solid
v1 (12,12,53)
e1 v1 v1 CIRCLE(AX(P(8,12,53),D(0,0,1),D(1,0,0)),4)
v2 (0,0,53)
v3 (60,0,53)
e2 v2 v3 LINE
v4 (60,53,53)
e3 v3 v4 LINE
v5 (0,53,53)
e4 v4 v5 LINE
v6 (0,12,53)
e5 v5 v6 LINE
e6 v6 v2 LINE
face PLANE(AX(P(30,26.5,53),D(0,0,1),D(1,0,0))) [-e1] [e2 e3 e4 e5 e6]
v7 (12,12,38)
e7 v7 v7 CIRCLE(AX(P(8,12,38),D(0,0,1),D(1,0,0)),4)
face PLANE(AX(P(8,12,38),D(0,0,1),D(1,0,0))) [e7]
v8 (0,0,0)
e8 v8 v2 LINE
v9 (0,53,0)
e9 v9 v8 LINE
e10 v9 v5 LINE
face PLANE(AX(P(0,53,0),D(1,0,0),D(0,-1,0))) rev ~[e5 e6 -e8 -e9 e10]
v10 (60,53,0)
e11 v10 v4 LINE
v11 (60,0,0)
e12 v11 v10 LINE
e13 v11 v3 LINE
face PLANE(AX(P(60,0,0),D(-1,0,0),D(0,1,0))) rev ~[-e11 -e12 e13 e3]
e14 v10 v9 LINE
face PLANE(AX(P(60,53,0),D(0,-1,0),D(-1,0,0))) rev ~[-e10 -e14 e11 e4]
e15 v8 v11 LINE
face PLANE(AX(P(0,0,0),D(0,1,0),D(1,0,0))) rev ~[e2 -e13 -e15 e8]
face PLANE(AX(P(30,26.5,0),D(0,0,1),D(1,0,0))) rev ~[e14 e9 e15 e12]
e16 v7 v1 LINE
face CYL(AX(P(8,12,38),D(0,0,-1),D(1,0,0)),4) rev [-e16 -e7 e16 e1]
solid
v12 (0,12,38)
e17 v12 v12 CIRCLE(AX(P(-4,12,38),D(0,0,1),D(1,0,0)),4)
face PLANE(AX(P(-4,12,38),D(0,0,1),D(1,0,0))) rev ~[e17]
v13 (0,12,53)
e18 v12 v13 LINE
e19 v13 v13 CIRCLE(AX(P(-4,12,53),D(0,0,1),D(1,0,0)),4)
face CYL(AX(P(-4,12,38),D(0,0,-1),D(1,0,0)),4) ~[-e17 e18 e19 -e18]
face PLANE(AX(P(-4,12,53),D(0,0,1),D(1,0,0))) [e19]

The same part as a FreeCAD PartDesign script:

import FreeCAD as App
import Part
import Sketcher
Q = App.Units.Quantity

doc = App.newDocument("Part")
params = doc.addObject("Spreadsheet::Sheet", "Params")
for row, (alias, value) in enumerate([
    ("sketch1_width", "60 mm"),
    ("sketch1_height", "53 mm"),
    ("pad1_length", "53 mm"),
    ("sketch2_diameter", "8 mm"),
    ("pocket1_length", "15 mm"),
    ("sketch3_diameter", "8 mm"),
    ("pad2_length", "15 mm"),
], start=1):
    params.set(f"A{row}", alias)
    params.set(f"B{row}", "=" + value)
    params.setAlias(f"B{row}", alias)

body = doc.addObject("PartDesign::Body", "Body")

# Sketch on XY plane
sketch1 = body.newObject("Sketcher::SketchObject", "Sketch")
sketch1.AttachmentSupport = (doc.getObject("XY_Plane"), [""])
sketch1.MapMode = "FlatFace"
sketch1.addGeometry([
    Part.LineSegment(App.Vector(0, 0, 0), App.Vector(60, 0, 0)),
    Part.LineSegment(App.Vector(60, 0, 0), App.Vector(60, 53, 0)),
    Part.LineSegment(App.Vector(60, 53, 0), App.Vector(0, 53, 0)),
    Part.LineSegment(App.Vector(0, 53, 0), App.Vector(0, 0, 0)),
], False)
sketch1.addConstraint([
    Sketcher.Constraint("Coincident", 0, 2, 1, 1),
    Sketcher.Constraint("Coincident", 1, 2, 2, 1),
    Sketcher.Constraint("Coincident", 2, 2, 3, 1),
    Sketcher.Constraint("Coincident", 3, 2, 0, 1),
    Sketcher.Constraint("Horizontal", 0),
    Sketcher.Constraint("Vertical", 1),
    Sketcher.Constraint("Horizontal", 2),
    Sketcher.Constraint("Vertical", 3),
    Sketcher.Constraint("Coincident", 3, 2, -1, 1),
    Sketcher.Constraint("DistanceX", 0, 1, 0, 2, Q("60 mm")),
    Sketcher.Constraint("DistanceY", 1, 1, 1, 2, Q("53 mm")),
])
sketch1.setExpression("Constraints[9]", "Params.sketch1_width")
sketch1.setExpression("Constraints[10]", "Params.sketch1_height")
pad1 = body.newObject("PartDesign::Pad", "Pad")
pad1.Profile = sketch1
pad1.setExpression("Length", "Params.pad1_length")

# Sketch on XY plane
sketch2 = body.newObject("Sketcher::SketchObject", "Sketch001")
sketch2.AttachmentSupport = (doc.getObject("XY_Plane"), [""])
sketch2.MapMode = "FlatFace"
sketch2.AttachmentOffset = App.Placement(App.Vector(0, 0, 38), App.Rotation())
sketch2.addGeometry([
    Part.Circle(App.Vector(8, 12, 0), App.Vector(0, 0, 1), 4),
    Part.Circle(App.Vector(-4, 12, 0), App.Vector(0, 0, 1), 4),
], False)
sketch2.addConstraint([
    Sketcher.Constraint("Equal", 0, 1),
    Sketcher.Constraint("Horizontal", 0, 3, 1, 3),
    Sketcher.Constraint("Diameter", 0, Q("8 mm")),
    Sketcher.Constraint("DistanceX", -1, 1, 0, 3, Q("8 mm")),
    Sketcher.Constraint("DistanceY", -1, 1, 0, 3, Q("12 mm")),
    Sketcher.Constraint("DistanceX", 1, 3, -1, 1, Q("4 mm")),
])
sketch2.setExpression("Constraints[2]", "Params.sketch2_diameter")
pocket1 = body.newObject("PartDesign::Pocket", "Pocket")
pocket1.Profile = sketch2
pocket1.setExpression("Length", "Params.pocket1_length")
pocket1.Reversed = True
body2 = doc.addObject("PartDesign::Body", "Body001")

# Sketch on XY plane
sketch3 = body2.newObject("Sketcher::SketchObject", "Sketch002")
sketch3.AttachmentSupport = (doc.getObject("XY_Plane001"), [""])
sketch3.MapMode = "FlatFace"
sketch3.AttachmentOffset = App.Placement(App.Vector(0, 0, 38), App.Rotation())
sketch3.addGeometry(Part.Circle(App.Vector(-4, 12, 0), App.Vector(0, 0, 1), 4), False)
sketch3.addConstraint([
    Sketcher.Constraint("Diameter", 0, Q("8 mm")),
    Sketcher.Constraint("DistanceX", 0, 3, -1, 1, Q("4 mm")),
    Sketcher.Constraint("DistanceY", -1, 1, 0, 3, Q("12 mm")),
])
sketch3.setExpression("Constraints[0]", "Params.sketch3_diameter")
pad2 = body2.newObject("PartDesign::Pad", "Pad001")
pad2.Profile = sketch3
pad2.setExpression("Length", "Params.pad2_length")

doc.recompute()
